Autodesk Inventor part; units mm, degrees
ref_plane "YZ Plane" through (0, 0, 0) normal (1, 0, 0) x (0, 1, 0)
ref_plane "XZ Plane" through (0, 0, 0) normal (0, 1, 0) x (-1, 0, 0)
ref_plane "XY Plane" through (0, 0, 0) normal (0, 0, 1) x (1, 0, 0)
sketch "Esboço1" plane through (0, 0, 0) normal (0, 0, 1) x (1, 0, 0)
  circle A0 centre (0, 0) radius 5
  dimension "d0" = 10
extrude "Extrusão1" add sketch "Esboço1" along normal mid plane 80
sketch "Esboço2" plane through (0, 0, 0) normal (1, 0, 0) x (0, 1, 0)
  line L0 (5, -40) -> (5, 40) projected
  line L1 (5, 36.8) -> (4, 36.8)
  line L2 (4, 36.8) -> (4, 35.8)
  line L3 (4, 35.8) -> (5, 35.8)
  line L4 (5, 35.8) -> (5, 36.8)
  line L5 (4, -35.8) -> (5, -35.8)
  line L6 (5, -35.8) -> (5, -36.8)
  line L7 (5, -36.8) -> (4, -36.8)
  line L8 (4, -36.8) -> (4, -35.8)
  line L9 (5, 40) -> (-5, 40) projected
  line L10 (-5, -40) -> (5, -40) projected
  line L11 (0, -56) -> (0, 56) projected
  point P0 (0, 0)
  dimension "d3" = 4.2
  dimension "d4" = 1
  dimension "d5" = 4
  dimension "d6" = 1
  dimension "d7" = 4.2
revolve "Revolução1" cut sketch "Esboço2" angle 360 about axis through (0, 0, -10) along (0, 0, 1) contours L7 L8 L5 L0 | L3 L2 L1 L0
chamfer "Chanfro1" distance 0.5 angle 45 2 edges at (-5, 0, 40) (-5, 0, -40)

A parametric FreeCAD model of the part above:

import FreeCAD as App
import Part
import Sketcher
from FreeCAD import Vector
Q = App.Units.Quantity


def edges_at(feature, points):
    """Names of the edges that pass closest to the given points."""
    edges = feature.Shape.Edges
    near = lambda p: min(range(len(edges)), key=lambda i: edges[i].distToShape(Part.Vertex(*p))[0])
    return sorted({f"Edge{near(p) + 1}" for p in points})

doc = App.newDocument("Part")
body = doc.addObject("PartDesign::Body", "Body")

sketch1 = body.newObject("Sketcher::SketchObject", "Sketch")
sketch1.AttachmentSupport = (doc.getObject("XY_Plane"), [""])
sketch1.MapMode = "FlatFace"
sketch1.addGeometry(Part.Circle(Vector(0, 0, 0), Vector(0, 0, 1), 5), False)
sketch1.addConstraint(Sketcher.Constraint("Coincident", 0, 3, -1, 1))
sketch1.addConstraint(Sketcher.Constraint("Diameter", 0, Q("10 mm")))
pad1 = body.newObject("PartDesign::Pad", "Pad")
pad1.Profile = sketch1
pad1.Length = 80
pad1.Midplane = True

sketch2 = body.newObject("Sketcher::SketchObject", "Sketch001")
sketch2.AttachmentSupport = (doc.getObject("YZ_Plane"), [""])
sketch2.MapMode = "FlatFace"
sketch2.addGeometry(Part.LineSegment(Vector(4, -36.8, 0), Vector(5, -36.8, 0)), False)
sketch2.addGeometry(Part.LineSegment(Vector(5, -36.8, 0), Vector(5, -35.8, 0)), False)
sketch2.addGeometry(Part.LineSegment(Vector(5, -35.8, 0), Vector(4, -35.8, 0)), False)
sketch2.addGeometry(Part.LineSegment(Vector(4, -35.8, 0), Vector(4, -36.8, 0)), False)
sketch2.addGeometry(Part.LineSegment(Vector(4, 35.8, 0), Vector(5, 35.8, 0)), False)
sketch2.addGeometry(Part.LineSegment(Vector(5, 35.8, 0), Vector(5, 36.8, 0)), False)
sketch2.addGeometry(Part.LineSegment(Vector(5, 36.8, 0), Vector(4, 36.8, 0)), False)
sketch2.addGeometry(Part.LineSegment(Vector(4, 36.8, 0), Vector(4, 35.8, 0)), False)
sketch2.addConstraint(Sketcher.Constraint("Coincident", 0, 2, 1, 1))
sketch2.addConstraint(Sketcher.Constraint("Coincident", 1, 2, 2, 1))
sketch2.addConstraint(Sketcher.Constraint("Coincident", 2, 2, 3, 1))
sketch2.addConstraint(Sketcher.Constraint("Coincident", 3, 2, 0, 1))
sketch2.addConstraint(Sketcher.Constraint("Coincident", 4, 2, 5, 1))
sketch2.addConstraint(Sketcher.Constraint("Coincident", 5, 2, 6, 1))
sketch2.addConstraint(Sketcher.Constraint("Coincident", 6, 2, 7, 1))
sketch2.addConstraint(Sketcher.Constraint("Coincident", 7, 2, 4, 1))
sketch2.addConstraint(Sketcher.Constraint("Horizontal", 0))
sketch2.addConstraint(Sketcher.Constraint("Vertical", 1))
sketch2.addConstraint(Sketcher.Constraint("Horizontal", 2))
sketch2.addConstraint(Sketcher.Constraint("Vertical", 3))
sketch2.addConstraint(Sketcher.Constraint("Horizontal", 4))
sketch2.addConstraint(Sketcher.Constraint("Vertical", 5))
sketch2.addConstraint(Sketcher.Constraint("Horizontal", 6))
sketch2.addConstraint(Sketcher.Constraint("Vertical", 7))
sketch2.addConstraint(Sketcher.Constraint("Symmetric", 1, 2, 4, 2, -1))
sketch2.addConstraint(Sketcher.Constraint("Symmetric", 3, 2, 6, 2, -1))
sketch2.addConstraint(Sketcher.Constraint("Equal", 6, 1))
sketch2.addConstraint(Sketcher.Constraint("DistanceX", 0, 1, 0, 2, Q("1 mm")))
sketch2.addConstraint(Sketcher.Constraint("DistanceX", -1, 1, 2, 2, Q("4 mm")))
sketch2.addConstraint(Sketcher.Constraint("DistanceY", 0, 2, -1, 1, Q("36.8 mm")))
groove = body.newObject("PartDesign::Groove", "Groove")
groove.Profile = sketch2
groove.ReferenceAxis = (sketch2, ["V_Axis"])
groove.Angle = 360
doc.recompute()

chamfer = body.newObject("PartDesign::Chamfer", "Chamfer")
chamfer.Base = (groove, edges_at(groove, [(-5, 0, 40), (-5, 0, -40)]))
chamfer.Size = 0.5

doc.recompute()
